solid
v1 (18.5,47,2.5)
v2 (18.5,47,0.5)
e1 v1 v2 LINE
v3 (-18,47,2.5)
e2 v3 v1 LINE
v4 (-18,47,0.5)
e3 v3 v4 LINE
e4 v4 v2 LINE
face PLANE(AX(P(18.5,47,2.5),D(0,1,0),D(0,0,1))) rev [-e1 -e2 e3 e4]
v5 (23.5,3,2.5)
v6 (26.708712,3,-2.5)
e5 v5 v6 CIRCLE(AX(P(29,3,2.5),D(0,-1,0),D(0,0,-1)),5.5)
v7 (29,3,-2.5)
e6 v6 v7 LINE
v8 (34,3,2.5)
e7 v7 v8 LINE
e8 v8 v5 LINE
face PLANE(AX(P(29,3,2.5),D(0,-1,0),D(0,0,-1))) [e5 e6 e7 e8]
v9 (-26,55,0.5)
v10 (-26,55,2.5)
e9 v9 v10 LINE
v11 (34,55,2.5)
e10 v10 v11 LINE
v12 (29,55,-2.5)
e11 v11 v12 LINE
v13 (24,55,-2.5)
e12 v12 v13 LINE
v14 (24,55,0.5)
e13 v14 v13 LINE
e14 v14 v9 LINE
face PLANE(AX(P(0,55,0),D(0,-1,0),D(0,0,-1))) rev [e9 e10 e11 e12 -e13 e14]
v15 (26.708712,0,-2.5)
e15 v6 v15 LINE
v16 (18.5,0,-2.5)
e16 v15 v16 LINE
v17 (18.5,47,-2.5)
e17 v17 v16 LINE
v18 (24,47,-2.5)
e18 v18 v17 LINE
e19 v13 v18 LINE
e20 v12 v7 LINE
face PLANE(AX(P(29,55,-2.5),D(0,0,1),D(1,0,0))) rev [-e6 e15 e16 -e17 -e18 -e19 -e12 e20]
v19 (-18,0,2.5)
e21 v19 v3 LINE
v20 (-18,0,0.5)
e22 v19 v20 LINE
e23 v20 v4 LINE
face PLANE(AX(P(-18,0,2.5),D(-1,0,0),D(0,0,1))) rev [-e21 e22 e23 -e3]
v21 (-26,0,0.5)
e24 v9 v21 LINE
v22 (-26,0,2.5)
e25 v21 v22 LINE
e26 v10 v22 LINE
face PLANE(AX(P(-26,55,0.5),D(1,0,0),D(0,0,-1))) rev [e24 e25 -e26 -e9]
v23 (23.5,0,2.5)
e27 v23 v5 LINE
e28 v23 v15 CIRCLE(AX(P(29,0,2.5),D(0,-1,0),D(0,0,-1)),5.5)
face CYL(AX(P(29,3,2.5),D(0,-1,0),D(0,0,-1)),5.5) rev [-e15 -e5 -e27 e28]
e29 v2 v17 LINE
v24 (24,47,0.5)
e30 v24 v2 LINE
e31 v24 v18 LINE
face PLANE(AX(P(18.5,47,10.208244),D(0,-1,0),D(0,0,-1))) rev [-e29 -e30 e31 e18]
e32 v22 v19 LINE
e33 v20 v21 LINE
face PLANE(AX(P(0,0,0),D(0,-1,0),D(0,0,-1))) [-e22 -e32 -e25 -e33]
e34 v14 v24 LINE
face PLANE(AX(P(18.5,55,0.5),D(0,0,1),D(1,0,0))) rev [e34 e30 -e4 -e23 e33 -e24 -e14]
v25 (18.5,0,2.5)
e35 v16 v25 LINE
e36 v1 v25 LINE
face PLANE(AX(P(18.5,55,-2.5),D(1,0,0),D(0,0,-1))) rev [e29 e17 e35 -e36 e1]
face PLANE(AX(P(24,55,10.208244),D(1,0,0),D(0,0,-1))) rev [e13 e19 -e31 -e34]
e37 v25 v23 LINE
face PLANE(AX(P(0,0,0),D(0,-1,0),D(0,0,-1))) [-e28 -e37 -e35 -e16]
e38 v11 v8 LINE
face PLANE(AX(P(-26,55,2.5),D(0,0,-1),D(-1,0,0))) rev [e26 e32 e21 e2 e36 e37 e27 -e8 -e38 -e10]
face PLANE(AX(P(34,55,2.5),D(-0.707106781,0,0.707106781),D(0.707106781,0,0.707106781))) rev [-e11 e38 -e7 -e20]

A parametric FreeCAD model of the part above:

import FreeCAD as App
import Part
import Sketcher
from FreeCAD import Vector
Q = App.Units.Quantity

doc = App.newDocument("Part")
body = doc.addObject("PartDesign::Body", "Body")

# Sketch on XZ plane
sketch1 = body.newObject("Sketcher::SketchObject", "Sketch")
sketch1.AttachmentSupport = (doc.getObject("XZ_Plane"), [""])
sketch1.MapMode = "FlatFace"
sketch1.addGeometry(Part.LineSegment(Vector(34, 2.5, 0), Vector(29, -2.5, 0)), False)
sketch1.addGeometry(Part.LineSegment(Vector(29, -2.5, 0), Vector(18.5, -2.5, 0)), False)
sketch1.addGeometry(Part.LineSegment(Vector(18.5, -2.5, 0), Vector(18.5, 0.5, 0)), False)
sketch1.addGeometry(Part.LineSegment(Vector(18.5, 0.5, 0), Vector(-26, 0.5, 0)), False)
sketch1.addGeometry(Part.LineSegment(Vector(-26, 0.5, 0), Vector(-26, 2.5, 0)), False)
sketch1.addGeometry(Part.LineSegment(Vector(-26, 2.5, 0), Vector(34, 2.5, 0)), False)
sketch1.addConstraint(Sketcher.Constraint("Coincident", 0, 2, 1, 1))
sketch1.addConstraint(Sketcher.Constraint("Coincident", 1, 2, 2, 1))
sketch1.addConstraint(Sketcher.Constraint("Coincident", 2, 2, 3, 1))
sketch1.addConstraint(Sketcher.Constraint("Coincident", 3, 2, 4, 1))
sketch1.addConstraint(Sketcher.Constraint("Coincident", 4, 2, 5, 1))
sketch1.addConstraint(Sketcher.Constraint("Coincident", 5, 2, 0, 1))
sketch1.addConstraint(Sketcher.Constraint("Horizontal", 1))
sketch1.addConstraint(Sketcher.Constraint("Vertical", 2))
sketch1.addConstraint(Sketcher.Constraint("Horizontal", 3))
sketch1.addConstraint(Sketcher.Constraint("Vertical", 4))
sketch1.addConstraint(Sketcher.Constraint("Horizontal", 5))
sketch1.addConstraint(Sketcher.Constraint("DistanceX", 5, 1, 5, 2, Q("60 mm")))
sketch1.addConstraint(Sketcher.Constraint("DistanceY", 2, 1, 2, 2, Q("3 mm")))
sketch1.addConstraint(Sketcher.Constraint("DistanceY", 4, 1, 4, 2, Q("2 mm")))
sketch1.addConstraint(Sketcher.Constraint("Angle", 0, Q("-135 deg")))
sketch1.addConstraint(Sketcher.Constraint("DistanceX", 1, 2, 1, 1, Q("10.5 mm")))
sketch1.addConstraint(Sketcher.Constraint("DistanceX", -1, 1, 0, 2, Q("29 mm")))
sketch1.addConstraint(Sketcher.Constraint("DistanceY", 0, 2, -1, 1, Q("2.5 mm")))
pad1 = body.newObject("PartDesign::Pad", "Pad")
pad1.Profile = sketch1
pad1.Length = 55
pad1.Reversed = True

# Sketch on XY plane
sketch2 = body.newObject("Sketcher::SketchObject", "Sketch001")
sketch2.AttachmentSupport = (doc.getObject("XY_Plane"), [""])
sketch2.MapMode = "FlatFace"
sketch2.AttachmentOffset = App.Placement(Vector(0, 0, 0.5), App.Rotation())
sketch2.addGeometry(Part.LineSegment(Vector(18, 47, 0), Vector(18, 0, 0)), False)
sketch2.addGeometry(Part.LineSegment(Vector(18, 0, 0), Vector(-18, 0, 0)), False)
sketch2.addGeometry(Part.LineSegment(Vector(-18, 0, 0), Vector(-18, 47, 0)), False)
sketch2.addGeometry(Part.LineSegment(Vector(-18, 47, 0), Vector(18, 47, 0)), False)
sketch2.addConstraint(Sketcher.Constraint("Coincident", 0, 2, 1, 1))
sketch2.addConstraint(Sketcher.Constraint("Coincident", 1, 2, 2, 1))
sketch2.addConstraint(Sketcher.Constraint("Coincident", 2, 2, 3, 1))
sketch2.addConstraint(Sketcher.Constraint("Coincident", 3, 2, 0, 1))
sketch2.addConstraint(Sketcher.Constraint("Vertical", 0))
sketch2.addConstraint(Sketcher.Constraint("Horizontal", 1))
sketch2.addConstraint(Sketcher.Constraint("Vertical", 2))
sketch2.addConstraint(Sketcher.Constraint("Horizontal", 3))
sketch2.addConstraint(Sketcher.Constraint("PointOnObject", 0, 2, -1))
sketch2.addConstraint(Sketcher.Constraint("DistanceY", 0, 2, 0, 1, Q("47 mm")))
sketch2.addConstraint(Sketcher.Constraint("DistanceX", 1, 2, 1, 1, Q("36.5 mm")))
sketch2.addConstraint(Sketcher.Constraint("DistanceX", 1, 2, -1, 1, Q("18 mm")))
pocket1 = body.newObject("PartDesign::Pocket", "Pocket")
pocket1.Profile = sketch2
pocket1.Type = "ThroughAll"
pocket1.Reversed = True

# Sketch on XY plane
sketch3 = body.newObject("Sketcher::SketchObject", "Sketch002")
sketch3.AttachmentSupport = (doc.getObject("XY_Plane"), [""])
sketch3.MapMode = "FlatFace"
sketch3.AttachmentOffset = App.Placement(Vector(0, 0, -2.5), App.Rotation())
sketch3.addGeometry(Part.LineSegment(Vector(24, 55, 0), Vector(24, 47, 0)), False)
sketch3.addGeometry(Part.LineSegment(Vector(24, 47, 0), Vector(18, 47, 0)), False)
sketch3.addGeometry(Part.LineSegment(Vector(18, 47, 0), Vector(18, 55, 0)), False)
sketch3.addGeometry(Part.LineSegment(Vector(18, 55, 0), Vector(24, 55, 0)), False)
sketch3.addConstraint(Sketcher.Constraint("Coincident", 0, 2, 1, 1))
sketch3.addConstraint(Sketcher.Constraint("Coincident", 1, 2, 2, 1))
sketch3.addConstraint(Sketcher.Constraint("Coincident", 2, 2, 3, 1))
sketch3.addConstraint(Sketcher.Constraint("Coincident", 3, 2, 0, 1))
sketch3.addConstraint(Sketcher.Constraint("Vertical", 0))
sketch3.addConstraint(Sketcher.Constraint("Horizontal", 1))
sketch3.addConstraint(Sketcher.Constraint("Vertical", 2))
sketch3.addConstraint(Sketcher.Constraint("Horizontal", 3))
sketch3.addConstraint(Sketcher.Constraint("DistanceY", 0, 2, 0, 1, Q("8 mm")))
sketch3.addConstraint(Sketcher.Constraint("DistanceX", 1, 2, 1, 1, Q("5.5 mm")))
sketch3.addConstraint(Sketcher.Constraint("DistanceX", -1, 1, 0, 2, Q("24 mm")))
sketch3.addConstraint(Sketcher.Constraint("DistanceY", -1, 1, 0, 2, Q("47 mm")))
pocket2 = body.newObject("PartDesign::Pocket", "Pocket001")
pocket2.Profile = sketch3
pocket2.Length = 3
pocket2.Reversed = True

# Sketch on XZ plane
sketch4 = body.newObject("Sketcher::SketchObject", "Sketch003")
sketch4.AttachmentSupport = (doc.getObject("XZ_Plane"), [""])
sketch4.MapMode = "FlatFace"
sketch4.addGeometry(Part.Circle(Vector(29, 2, 0), Vector(0, 0, 1), 6), False)
sketch4.addConstraint(Sketcher.Constraint("Diameter", 0, Q("11 mm")))
sketch4.addConstraint(Sketcher.Constraint("DistanceX", -1, 1, 0, 3, Q("29 mm")))
sketch4.addConstraint(Sketcher.Constraint("DistanceY", -1, 1, 0, 3, Q("2.5 mm")))
pocket3 = body.newObject("PartDesign::Pocket", "Pocket002")
pocket3.Profile = sketch4
pocket3.Length = 3

doc.recompute()
